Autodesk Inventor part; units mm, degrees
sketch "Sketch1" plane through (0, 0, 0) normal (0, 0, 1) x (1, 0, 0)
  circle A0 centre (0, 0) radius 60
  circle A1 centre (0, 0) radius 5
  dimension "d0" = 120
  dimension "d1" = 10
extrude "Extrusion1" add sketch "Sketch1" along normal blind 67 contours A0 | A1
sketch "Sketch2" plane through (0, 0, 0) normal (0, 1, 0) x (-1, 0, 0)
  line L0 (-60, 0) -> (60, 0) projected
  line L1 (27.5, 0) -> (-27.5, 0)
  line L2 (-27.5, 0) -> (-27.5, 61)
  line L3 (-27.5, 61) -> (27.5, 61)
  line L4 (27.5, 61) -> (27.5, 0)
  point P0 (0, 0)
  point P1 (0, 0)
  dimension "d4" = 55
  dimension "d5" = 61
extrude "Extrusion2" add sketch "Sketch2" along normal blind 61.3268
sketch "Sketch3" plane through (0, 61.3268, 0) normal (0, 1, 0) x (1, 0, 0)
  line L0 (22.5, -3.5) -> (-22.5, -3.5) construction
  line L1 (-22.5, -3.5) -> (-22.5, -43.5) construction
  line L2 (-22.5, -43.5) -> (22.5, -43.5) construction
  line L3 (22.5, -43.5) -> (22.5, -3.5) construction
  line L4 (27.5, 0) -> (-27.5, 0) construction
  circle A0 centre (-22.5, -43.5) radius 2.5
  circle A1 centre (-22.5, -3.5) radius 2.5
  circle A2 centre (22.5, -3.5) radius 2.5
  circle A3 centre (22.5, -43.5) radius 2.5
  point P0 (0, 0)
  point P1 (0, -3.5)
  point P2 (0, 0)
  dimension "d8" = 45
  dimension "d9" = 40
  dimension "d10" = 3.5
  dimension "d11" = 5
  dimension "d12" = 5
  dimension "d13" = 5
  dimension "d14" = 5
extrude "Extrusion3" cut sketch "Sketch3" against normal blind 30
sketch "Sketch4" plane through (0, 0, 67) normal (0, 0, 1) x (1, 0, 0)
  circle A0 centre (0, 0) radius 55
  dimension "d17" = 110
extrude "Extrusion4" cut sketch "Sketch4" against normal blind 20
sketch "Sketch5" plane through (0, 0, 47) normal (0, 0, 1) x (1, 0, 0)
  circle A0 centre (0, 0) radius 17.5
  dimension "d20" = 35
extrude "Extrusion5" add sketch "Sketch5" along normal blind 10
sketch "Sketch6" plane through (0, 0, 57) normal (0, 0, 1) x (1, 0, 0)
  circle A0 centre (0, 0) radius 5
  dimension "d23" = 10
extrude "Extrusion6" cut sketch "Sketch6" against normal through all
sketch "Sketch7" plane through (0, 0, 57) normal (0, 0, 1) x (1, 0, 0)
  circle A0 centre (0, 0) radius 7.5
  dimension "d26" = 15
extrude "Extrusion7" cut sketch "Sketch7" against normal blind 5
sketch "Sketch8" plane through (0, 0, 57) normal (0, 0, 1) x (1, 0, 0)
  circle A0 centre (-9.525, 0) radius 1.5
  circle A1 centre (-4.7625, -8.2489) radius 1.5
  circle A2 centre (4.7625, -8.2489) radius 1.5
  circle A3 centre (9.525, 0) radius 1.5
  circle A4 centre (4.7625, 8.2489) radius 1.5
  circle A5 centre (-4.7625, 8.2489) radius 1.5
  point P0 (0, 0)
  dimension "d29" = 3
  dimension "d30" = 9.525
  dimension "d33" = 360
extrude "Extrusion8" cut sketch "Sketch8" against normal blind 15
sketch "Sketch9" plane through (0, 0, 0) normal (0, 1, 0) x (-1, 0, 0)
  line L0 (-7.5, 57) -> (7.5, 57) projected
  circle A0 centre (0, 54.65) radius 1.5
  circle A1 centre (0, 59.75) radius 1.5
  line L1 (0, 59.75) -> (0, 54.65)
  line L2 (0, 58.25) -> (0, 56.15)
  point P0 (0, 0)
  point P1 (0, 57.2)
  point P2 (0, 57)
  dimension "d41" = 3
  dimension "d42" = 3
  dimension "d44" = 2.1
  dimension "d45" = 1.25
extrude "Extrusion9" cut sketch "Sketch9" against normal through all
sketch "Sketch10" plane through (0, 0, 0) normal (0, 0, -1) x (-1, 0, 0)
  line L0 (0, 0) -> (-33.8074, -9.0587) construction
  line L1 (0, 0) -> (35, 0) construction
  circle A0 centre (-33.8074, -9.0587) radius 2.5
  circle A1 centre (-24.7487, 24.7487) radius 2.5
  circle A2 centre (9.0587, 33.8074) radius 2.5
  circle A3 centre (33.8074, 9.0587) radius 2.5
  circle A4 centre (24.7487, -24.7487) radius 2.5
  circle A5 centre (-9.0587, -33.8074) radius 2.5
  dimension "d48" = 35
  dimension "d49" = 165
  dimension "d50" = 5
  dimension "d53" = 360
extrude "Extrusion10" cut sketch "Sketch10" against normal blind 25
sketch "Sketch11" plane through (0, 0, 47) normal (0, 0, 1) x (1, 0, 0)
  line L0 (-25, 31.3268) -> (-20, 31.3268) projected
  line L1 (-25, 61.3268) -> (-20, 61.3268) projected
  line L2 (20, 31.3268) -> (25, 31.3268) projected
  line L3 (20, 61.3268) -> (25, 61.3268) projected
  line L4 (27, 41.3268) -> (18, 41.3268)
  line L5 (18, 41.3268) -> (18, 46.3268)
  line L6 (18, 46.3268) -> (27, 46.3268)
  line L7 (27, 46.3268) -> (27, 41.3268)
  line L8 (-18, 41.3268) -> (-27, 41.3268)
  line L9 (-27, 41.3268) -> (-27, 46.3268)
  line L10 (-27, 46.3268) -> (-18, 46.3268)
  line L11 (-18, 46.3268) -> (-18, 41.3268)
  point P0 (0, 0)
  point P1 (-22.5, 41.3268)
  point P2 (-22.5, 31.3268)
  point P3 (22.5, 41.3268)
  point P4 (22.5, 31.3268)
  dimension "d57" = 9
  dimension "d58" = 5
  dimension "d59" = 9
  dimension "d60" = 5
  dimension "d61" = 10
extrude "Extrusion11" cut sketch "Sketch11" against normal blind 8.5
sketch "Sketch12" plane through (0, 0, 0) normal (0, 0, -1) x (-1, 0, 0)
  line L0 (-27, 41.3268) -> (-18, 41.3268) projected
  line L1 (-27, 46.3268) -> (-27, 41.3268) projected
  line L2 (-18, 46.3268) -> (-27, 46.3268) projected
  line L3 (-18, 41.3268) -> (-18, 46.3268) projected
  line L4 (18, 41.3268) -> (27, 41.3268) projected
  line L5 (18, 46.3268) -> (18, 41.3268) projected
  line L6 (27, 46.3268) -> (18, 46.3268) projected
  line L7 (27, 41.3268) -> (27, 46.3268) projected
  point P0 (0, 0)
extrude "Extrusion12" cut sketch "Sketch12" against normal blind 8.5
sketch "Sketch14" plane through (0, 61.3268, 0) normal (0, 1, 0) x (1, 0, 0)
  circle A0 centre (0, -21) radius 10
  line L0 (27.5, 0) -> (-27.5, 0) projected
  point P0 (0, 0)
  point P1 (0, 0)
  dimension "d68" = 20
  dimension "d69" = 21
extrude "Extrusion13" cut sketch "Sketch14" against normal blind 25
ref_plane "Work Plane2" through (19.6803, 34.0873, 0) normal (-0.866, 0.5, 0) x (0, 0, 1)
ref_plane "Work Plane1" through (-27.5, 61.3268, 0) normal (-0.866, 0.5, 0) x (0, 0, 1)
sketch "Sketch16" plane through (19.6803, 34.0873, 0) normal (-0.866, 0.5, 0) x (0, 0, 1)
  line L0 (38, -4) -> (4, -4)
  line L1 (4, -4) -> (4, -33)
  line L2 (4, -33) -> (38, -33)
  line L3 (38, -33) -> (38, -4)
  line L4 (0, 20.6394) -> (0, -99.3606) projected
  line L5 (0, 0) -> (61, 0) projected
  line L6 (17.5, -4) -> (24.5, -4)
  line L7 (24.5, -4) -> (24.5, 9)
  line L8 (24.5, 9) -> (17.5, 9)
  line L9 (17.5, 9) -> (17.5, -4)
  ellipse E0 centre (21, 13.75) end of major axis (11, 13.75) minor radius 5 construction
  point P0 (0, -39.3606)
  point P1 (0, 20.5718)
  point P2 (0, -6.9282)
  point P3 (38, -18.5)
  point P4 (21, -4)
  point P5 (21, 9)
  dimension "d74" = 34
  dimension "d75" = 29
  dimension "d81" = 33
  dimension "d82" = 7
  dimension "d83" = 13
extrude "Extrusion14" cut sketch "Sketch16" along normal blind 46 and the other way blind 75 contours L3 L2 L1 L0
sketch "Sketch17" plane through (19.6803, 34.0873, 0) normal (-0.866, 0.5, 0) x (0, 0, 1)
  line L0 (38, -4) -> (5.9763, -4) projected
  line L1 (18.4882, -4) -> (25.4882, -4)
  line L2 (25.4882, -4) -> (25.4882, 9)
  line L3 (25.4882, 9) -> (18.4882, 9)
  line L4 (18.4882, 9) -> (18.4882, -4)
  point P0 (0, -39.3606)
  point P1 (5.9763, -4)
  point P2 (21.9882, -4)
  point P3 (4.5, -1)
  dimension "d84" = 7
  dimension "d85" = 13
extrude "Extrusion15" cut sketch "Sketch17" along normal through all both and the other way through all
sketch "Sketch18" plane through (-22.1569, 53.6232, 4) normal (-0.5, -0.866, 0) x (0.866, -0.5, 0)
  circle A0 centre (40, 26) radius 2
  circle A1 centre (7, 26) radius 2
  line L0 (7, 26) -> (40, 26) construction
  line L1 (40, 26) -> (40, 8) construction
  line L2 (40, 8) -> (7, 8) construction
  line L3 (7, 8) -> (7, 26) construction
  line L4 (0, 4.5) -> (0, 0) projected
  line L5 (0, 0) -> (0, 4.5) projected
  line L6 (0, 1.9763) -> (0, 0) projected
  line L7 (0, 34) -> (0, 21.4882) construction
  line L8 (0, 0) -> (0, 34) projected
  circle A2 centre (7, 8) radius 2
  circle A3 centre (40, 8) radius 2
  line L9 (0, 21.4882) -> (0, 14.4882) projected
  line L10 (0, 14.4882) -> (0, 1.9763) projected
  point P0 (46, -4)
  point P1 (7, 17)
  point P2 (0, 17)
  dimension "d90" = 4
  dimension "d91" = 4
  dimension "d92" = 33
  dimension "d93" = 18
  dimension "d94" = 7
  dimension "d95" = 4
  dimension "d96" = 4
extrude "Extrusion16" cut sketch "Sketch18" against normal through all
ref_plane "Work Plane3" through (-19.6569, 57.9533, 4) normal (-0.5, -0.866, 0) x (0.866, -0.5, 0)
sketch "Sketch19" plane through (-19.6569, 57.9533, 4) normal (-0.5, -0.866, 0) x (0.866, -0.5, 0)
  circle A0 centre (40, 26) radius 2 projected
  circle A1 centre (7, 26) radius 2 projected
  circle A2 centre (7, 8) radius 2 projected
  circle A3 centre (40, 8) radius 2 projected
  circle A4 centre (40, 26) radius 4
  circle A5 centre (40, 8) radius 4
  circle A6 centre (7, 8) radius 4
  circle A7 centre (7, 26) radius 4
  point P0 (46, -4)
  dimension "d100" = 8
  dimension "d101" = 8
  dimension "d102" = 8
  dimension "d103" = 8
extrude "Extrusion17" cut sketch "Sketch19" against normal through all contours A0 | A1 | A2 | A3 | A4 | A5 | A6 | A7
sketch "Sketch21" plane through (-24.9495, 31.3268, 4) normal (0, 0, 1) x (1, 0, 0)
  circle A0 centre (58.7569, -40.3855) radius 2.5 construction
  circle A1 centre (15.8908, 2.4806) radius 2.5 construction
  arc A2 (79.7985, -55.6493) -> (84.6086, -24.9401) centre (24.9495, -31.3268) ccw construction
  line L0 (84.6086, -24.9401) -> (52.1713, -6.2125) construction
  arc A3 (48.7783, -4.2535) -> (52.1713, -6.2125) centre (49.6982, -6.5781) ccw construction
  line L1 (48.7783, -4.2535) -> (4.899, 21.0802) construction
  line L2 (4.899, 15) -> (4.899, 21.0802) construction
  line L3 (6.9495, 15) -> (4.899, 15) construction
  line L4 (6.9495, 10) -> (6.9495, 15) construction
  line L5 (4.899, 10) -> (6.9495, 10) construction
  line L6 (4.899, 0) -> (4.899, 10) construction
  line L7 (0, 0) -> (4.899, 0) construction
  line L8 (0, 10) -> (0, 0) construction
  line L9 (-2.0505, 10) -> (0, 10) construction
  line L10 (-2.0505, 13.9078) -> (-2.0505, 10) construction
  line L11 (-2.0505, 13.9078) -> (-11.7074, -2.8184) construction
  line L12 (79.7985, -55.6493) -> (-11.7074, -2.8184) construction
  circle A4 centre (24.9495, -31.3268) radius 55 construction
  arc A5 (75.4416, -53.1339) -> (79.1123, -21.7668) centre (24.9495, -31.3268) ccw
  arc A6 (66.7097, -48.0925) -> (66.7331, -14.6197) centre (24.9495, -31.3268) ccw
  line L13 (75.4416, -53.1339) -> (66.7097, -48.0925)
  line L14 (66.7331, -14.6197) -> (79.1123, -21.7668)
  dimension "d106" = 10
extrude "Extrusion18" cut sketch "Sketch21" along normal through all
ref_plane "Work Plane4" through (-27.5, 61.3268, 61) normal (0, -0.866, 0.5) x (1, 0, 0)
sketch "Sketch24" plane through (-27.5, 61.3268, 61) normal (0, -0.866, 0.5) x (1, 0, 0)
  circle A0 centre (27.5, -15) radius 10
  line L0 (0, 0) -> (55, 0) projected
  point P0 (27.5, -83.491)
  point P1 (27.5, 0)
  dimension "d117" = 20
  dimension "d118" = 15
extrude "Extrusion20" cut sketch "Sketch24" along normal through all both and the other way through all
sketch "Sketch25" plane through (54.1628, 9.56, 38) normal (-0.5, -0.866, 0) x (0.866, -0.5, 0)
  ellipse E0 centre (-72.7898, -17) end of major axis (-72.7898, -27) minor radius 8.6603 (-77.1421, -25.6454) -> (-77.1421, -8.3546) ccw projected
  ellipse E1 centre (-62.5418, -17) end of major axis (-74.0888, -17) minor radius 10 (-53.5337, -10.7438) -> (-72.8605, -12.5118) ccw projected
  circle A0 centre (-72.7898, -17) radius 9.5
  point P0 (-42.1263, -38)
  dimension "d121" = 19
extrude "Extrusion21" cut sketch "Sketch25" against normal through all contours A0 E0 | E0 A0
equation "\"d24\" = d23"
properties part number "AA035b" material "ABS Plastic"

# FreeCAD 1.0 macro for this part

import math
import FreeCAD as App
import Part
import Sketcher

V = App.Vector
Q = App.Units.Quantity

doc = App.newDocument("Part")
body = doc.addObject("PartDesign::Body", "Body")

sketch1 = body.newObject("Sketcher::SketchObject", "Sketch")
sketch1.AttachmentSupport = (doc.getObject("XY_Plane"), [""])
sketch1.MapMode = "FlatFace"
sketch1.addGeometry(Part.Circle(V(0, 0, 0), V(0, 0, 1), 60), False)
sketch1.addConstraint([
    Sketcher.Constraint("Coincident", 0, 3, -1, 1),
    Sketcher.Constraint("Diameter", 0, 120.0),
])
pad1 = body.newObject("PartDesign::Pad", "Pad")
pad1.Profile = sketch1
pad1.Length = 67

sketch2 = body.newObject("Sketcher::SketchObject", "Sketch001")
sketch2.AttachmentSupport = (doc.getObject("XZ_Plane"), [""])
sketch2.MapMode = "FlatFace"
sketch2.addGeometry([
    Part.LineSegment(V(28, 61, 0), V(28, 0, 0)),
    Part.LineSegment(V(28, 0, 0), V(-28, 0, 0)),
    Part.LineSegment(V(-28, 0, 0), V(-28, 61, 0)),
    Part.LineSegment(V(-28, 61, 0), V(28, 61, 0)),
], False)
sketch2.addConstraint([
    Sketcher.Constraint("Coincident", 0, 2, 1, 1),
    Sketcher.Constraint("Coincident", 1, 2, 2, 1),
    Sketcher.Constraint("Coincident", 2, 2, 3, 1),
    Sketcher.Constraint("Coincident", 3, 2, 0, 1),
    Sketcher.Constraint("Vertical", 0),
    Sketcher.Constraint("Horizontal", 1),
    Sketcher.Constraint("Vertical", 2),
    Sketcher.Constraint("Horizontal", 3),
    Sketcher.Constraint("Symmetric", 0, 2, 1, 2, -1, 1),
    Sketcher.Constraint("DistanceX", 1, 2, 1, 1, 55.0),
    Sketcher.Constraint("DistanceY", 0, 2, 0, 1, 61.0),
])
pad2 = body.newObject("PartDesign::Pad", "Pad001")
pad2.Profile = sketch2
pad2.Length = 61.3268
pad2.Reversed = True

sketch3 = body.newObject("Sketcher::SketchObject", "Sketch002")
sketch3.AttachmentSupport = (doc.getObject("XZ_Plane"), [""])
sketch3.MapMode = "FlatFace"
sketch3.AttachmentOffset = App.Placement(V(0, 0, -61.3268), App.Rotation())
sketch3.addGeometry([
    Part.Circle(V(-22.5, 43.5, 0), V(0, 0, 1), 2.5),
    Part.Circle(V(-22.5, 3.5, 0), V(0, 0, 1), 2.5),
    Part.Circle(V(22.5, 3.5, 0), V(0, 0, 1), 2.5),
    Part.Circle(V(22.5, 43.5, 0), V(0, 0, 1), 2.5),
], False)
sketch3.addConstraint([
    Sketcher.Constraint("Equal", 0, 1),
    Sketcher.Constraint("Equal", 1, 2),
    Sketcher.Constraint("Equal", 2, 3),
    Sketcher.Constraint("Symmetric", 1, 3, 2, 3, -2),
    Sketcher.Constraint("Symmetric", 0, 3, 3, 3, -2),
    Sketcher.Constraint("Vertical", 0, 3, 1, 3),
    Sketcher.Constraint("Diameter", 0, 5.0),
    Sketcher.Constraint("DistanceY", 1, 3, 0, 3, 40.0),
    Sketcher.Constraint("DistanceX", 1, 3, 2, 3, 45.0),
    Sketcher.Constraint("DistanceY", -1, 1, 1, 3, 3.5),
])
pocket1 = body.newObject("PartDesign::Pocket", "Pocket")
pocket1.Profile = sketch3
pocket1.Length = 30
pocket1.Reversed = True

sketch4 = body.newObject("Sketcher::SketchObject", "Sketch003")
sketch4.AttachmentSupport = (doc.getObject("XY_Plane"), [""])
sketch4.MapMode = "FlatFace"
sketch4.AttachmentOffset = App.Placement(V(0, 0, 67), App.Rotation())
sketch4.addGeometry(Part.Circle(V(0, 0, 0), V(0, 0, 1), 55), False)
sketch4.addConstraint([
    Sketcher.Constraint("Coincident", 0, 3, -1, 1),
    Sketcher.Constraint("Diameter", 0, 110.0),
])
pocket2 = body.newObject("PartDesign::Pocket", "Pocket001")
pocket2.Profile = sketch4
pocket2.Length = 20

sketch5 = body.newObject("Sketcher::SketchObject", "Sketch004")
sketch5.AttachmentSupport = (doc.getObject("XY_Plane"), [""])
sketch5.MapMode = "FlatFace"
sketch5.AttachmentOffset = App.Placement(V(0, 0, 47), App.Rotation())
sketch5.addGeometry(Part.Circle(V(0, 0, 0), V(0, 0, 1), 18), False)
sketch5.addConstraint([
    Sketcher.Constraint("Coincident", 0, 3, -1, 1),
    Sketcher.Constraint("Diameter", 0, 35.0),
])
pad3 = body.newObject("PartDesign::Pad", "Pad002")
pad3.Profile = sketch5
pad3.Length = 10

sketch6 = body.newObject("Sketcher::SketchObject", "Sketch005")
sketch6.AttachmentSupport = (doc.getObject("XY_Plane"), [""])
sketch6.MapMode = "FlatFace"
sketch6.AttachmentOffset = App.Placement(V(0, 0, 57), App.Rotation())
sketch6.addGeometry(Part.Circle(V(0, 0, 0), V(0, 0, 1), 5), False)
sketch6.addConstraint([
    Sketcher.Constraint("Coincident", 0, 3, -1, 1),
    Sketcher.Constraint("Diameter", 0, 10.0),
])
pocket3 = body.newObject("PartDesign::Pocket", "Pocket002")
pocket3.Profile = sketch6
pocket3.Type = "ThroughAll"

sketch7 = body.newObject("Sketcher::SketchObject", "Sketch006")
sketch7.AttachmentSupport = (doc.getObject("XY_Plane"), [""])
sketch7.MapMode = "FlatFace"
sketch7.AttachmentOffset = App.Placement(V(0, 0, 57), App.Rotation())
sketch7.addGeometry(Part.Circle(V(0, 0, 0), V(0, 0, 1), 8), False)
sketch7.addConstraint([
    Sketcher.Constraint("Coincident", 0, 3, -1, 1),
    Sketcher.Constraint("Diameter", 0, 15.0),
])
pocket4 = body.newObject("PartDesign::Pocket", "Pocket003")
pocket4.Profile = sketch7
pocket4.Length = 5

sketch8 = body.newObject("Sketcher::SketchObject", "Sketch007")
sketch8.AttachmentSupport = (doc.getObject("XY_Plane"), [""])
sketch8.MapMode = "FlatFace"
sketch8.AttachmentOffset = App.Placement(V(0, 0, 57), App.Rotation())
sketch8.addGeometry([
    Part.Circle(V(-9.5, 0, 0), V(0, 0, 1), 1.5),
    Part.Circle(V(-4.8, -8.2, 0), V(0, 0, 1), 1.5),
    Part.Circle(V(4.8, -8.2, 0), V(0, 0, 1), 1.5),
    Part.Circle(V(9.5, 0, 0), V(0, 0, 1), 1.5),
    Part.Circle(V(4.8, 8.2, 0), V(0, 0, 1), 1.5),
    Part.Circle(V(-4.8, 8.2, 0), V(0, 0, 1), 1.5),
], False)
sketch8.addConstraint([
    Sketcher.Constraint("Equal", 0, 1),
    Sketcher.Constraint("Equal", 1, 2),
    Sketcher.Constraint("Equal", 2, 3),
    Sketcher.Constraint("Equal", 3, 4),
    Sketcher.Constraint("Equal", 4, 5),
    Sketcher.Constraint("Symmetric", 0, 3, 3, 3, -1, 1),
    Sketcher.Constraint("Symmetric", 1, 3, 4, 3, -1, 1),
    Sketcher.Constraint("Symmetric", 2, 3, 5, 3, -1, 1),
    Sketcher.Constraint("Symmetric", 1, 3, 2, 3, -2),
    Sketcher.Constraint("PointOnObject", 0, 3, -1),
    Sketcher.Constraint("Diameter", 0, 3.0),
    Sketcher.Constraint("DistanceX", 0, 3, -1, 1, 9.525),
    Sketcher.Constraint("DistanceX", 1, 3, 2, 3, 9.525),
    Sketcher.Constraint("DistanceY", 1, 3, -1, 1, 8.249),
])
pocket5 = body.newObject("PartDesign::Pocket", "Pocket004")
pocket5.Profile = sketch8
pocket5.Length = 15

sketch9 = body.newObject("Sketcher::SketchObject", "Sketch008")
sketch9.AttachmentSupport = (doc.getObject("XZ_Plane"), [""])
sketch9.MapMode = "FlatFace"
sketch9.addGeometry([
    Part.Circle(V(0, 54.6, 0), V(0, 0, 1), 1.5),
    Part.Circle(V(0, 59.8, 0), V(0, 0, 1), 1.5),
], False)
sketch9.addConstraint([
    Sketcher.Constraint("Equal", 0, 1),
    Sketcher.Constraint("PointOnObject", 0, 3, -2),
    Sketcher.Constraint("PointOnObject", 1, 3, -2),
    Sketcher.Constraint("Diameter", 0, 3.0),
    Sketcher.Constraint("DistanceY", 0, 3, 1, 3, 5.1),
    Sketcher.Constraint("DistanceY", -1, 1, 0, 3, 54.65),
])
pocket6 = body.newObject("PartDesign::Pocket", "Pocket005")
pocket6.Profile = sketch9
pocket6.Type = "ThroughAll"
pocket6.Reversed = True

sketch10 = body.newObject("Sketcher::SketchObject", "Sketch009")
sketch10.AttachmentSupport = (doc.getObject("XY_Plane"), [""])
sketch10.MapMode = "FlatFace"
sketch10.addGeometry([
    Part.Circle(V(33.8, -9.1, 0), V(0, 0, 1), 2.5),
    Part.Circle(V(24.7, 24.7, 0), V(0, 0, 1), 2.5),
    Part.Circle(V(-9.1, 33.8, 0), V(0, 0, 1), 2.5),
    Part.Circle(V(-33.8, 9.1, 0), V(0, 0, 1), 2.5),
    Part.Circle(V(-24.7, -24.7, 0), V(0, 0, 1), 2.5),
    Part.Circle(V(9.1, -33.8, 0), V(0, 0, 1), 2.5),
], False)
sketch10.addConstraint([
    Sketcher.Constraint("Equal", 0, 1),
    Sketcher.Constraint("Equal", 1, 2),
    Sketcher.Constraint("Equal", 2, 3),
    Sketcher.Constraint("Equal", 3, 4),
    Sketcher.Constraint("Equal", 4, 5),
    Sketcher.Constraint("Symmetric", 0, 3, 3, 3, -1, 1),
    Sketcher.Constraint("Symmetric", 1, 3, 4, 3, -1, 1),
    Sketcher.Constraint("Symmetric", 2, 3, 5, 3, -1, 1),
    Sketcher.Constraint("Diameter", 0, 5.0),
    Sketcher.Constraint("DistanceY", 3, 3, 1, 3, 15.69),
    Sketcher.Constraint("DistanceX", 4, 3, 2, 3, 15.69),
    Sketcher.Constraint("DistanceX", 2, 3, 0, 3, 42.866),
    Sketcher.Constraint("DistanceY", 0, 3, 2, 3, 42.866),
    Sketcher.Constraint("DistanceX", -1, 1, 0, 3, 33.8074),
    Sketcher.Constraint("DistanceY", 0, 3, -1, 1, 9.0587),
])
pocket7 = body.newObject("PartDesign::Pocket", "Pocket006")
pocket7.Profile = sketch10
pocket7.Length = 25
pocket7.Reversed = True

sketch11 = body.newObject("Sketcher::SketchObject", "Sketch010")
sketch11.AttachmentSupport = (doc.getObject("XY_Plane"), [""])
sketch11.MapMode = "FlatFace"
sketch11.AttachmentOffset = App.Placement(V(0, 0, 47), App.Rotation())
sketch11.addGeometry([
    Part.LineSegment(V(18, 41, 0), V(27, 41, 0)),
    Part.LineSegment(V(27, 41, 0), V(27, 46, 0)),
    Part.LineSegment(V(27, 46, 0), V(18, 46, 0)),
    Part.LineSegment(V(18, 46, 0), V(18, 41, 0)),
    Part.LineSegment(V(-27, 41, 0), V(-18, 41, 0)),
    Part.LineSegment(V(-18, 41, 0), V(-18, 46, 0)),
    Part.LineSegment(V(-18, 46, 0), V(-27, 46, 0)),
    Part.LineSegment(V(-27, 46, 0), V(-27, 41, 0)),
], False)
sketch11.addConstraint([
    Sketcher.Constraint("Coincident", 0, 2, 1, 1),
    Sketcher.Constraint("Coincident", 1, 2, 2, 1),
    Sketcher.Constraint("Coincident", 2, 2, 3, 1),
    Sketcher.Constraint("Coincident", 3, 2, 0, 1),
    Sketcher.Constraint("Coincident", 4, 2, 5, 1),
    Sketcher.Constraint("Coincident", 5, 2, 6, 1),
    Sketcher.Constraint("Coincident", 6, 2, 7, 1),
    Sketcher.Constraint("Coincident", 7, 2, 4, 1),
    Sketcher.Constraint("Horizontal", 0),
    Sketcher.Constraint("Vertical", 1),
    Sketcher.Constraint("Horizontal", 2),
    Sketcher.Constraint("Vertical", 3),
    Sketcher.Constraint("Horizontal", 4),
    Sketcher.Constraint("Vertical", 5),
    Sketcher.Constraint("Horizontal", 6),
    Sketcher.Constraint("Vertical", 7),
    Sketcher.Constraint("Symmetric", 3, 2, 4, 2, -2),
    Sketcher.Constraint("Symmetric", 1, 2, 6, 2, -2),
    Sketcher.Constraint("DistanceX", 0, 1, 0, 2, 9.0),
    Sketcher.Constraint("DistanceY", 1, 1, 1, 2, 5.0),
    Sketcher.Constraint("DistanceX", -1, 1, 0, 2, 27.0),
    Sketcher.Constraint("DistanceY", -1, 1, 0, 2, 41.3268),
])
pocket8 = body.newObject("PartDesign::Pocket", "Pocket007")
pocket8.Profile = sketch11
pocket8.Length = 8.5

sketch12 = body.newObject("Sketcher::SketchObject", "Sketch011")
sketch12.AttachmentSupport = (doc.getObject("XY_Plane"), [""])
sketch12.MapMode = "FlatFace"
sketch12.addGeometry([
    Part.LineSegment(V(27, 46, 0), V(27, 41, 0)),
    Part.LineSegment(V(27, 41, 0), V(18, 41, 0)),
    Part.LineSegment(V(18, 41, 0), V(18, 46, 0)),
    Part.LineSegment(V(18, 46, 0), V(27, 46, 0)),
    Part.LineSegment(V(-18, 46, 0), V(-18, 41, 0)),
    Part.LineSegment(V(-18, 41, 0), V(-27, 41, 0)),
    Part.LineSegment(V(-27, 41, 0), V(-27, 46, 0)),
    Part.LineSegment(V(-27, 46, 0), V(-18, 46, 0)),
], False)
sketch12.addConstraint([
    Sketcher.Constraint("Coincident", 0, 2, 1, 1),
    Sketcher.Constraint("Coincident", 1, 2, 2, 1),
    Sketcher.Constraint("Coincident", 2, 2, 3, 1),
    Sketcher.Constraint("Coincident", 3, 2, 0, 1),
    Sketcher.Constraint("Coincident", 4, 2, 5, 1),
    Sketcher.Constraint("Coincident", 5, 2, 6, 1),
    Sketcher.Constraint("Coincident", 6, 2, 7, 1),
    Sketcher.Constraint("Coincident", 7, 2, 4, 1),
    Sketcher.Constraint("Vertical", 0),
    Sketcher.Constraint("Horizontal", 1),
    Sketcher.Constraint("Vertical", 2),
    Sketcher.Constraint("Horizontal", 3),
    Sketcher.Constraint("Vertical", 4),
    Sketcher.Constraint("Horizontal", 5),
    Sketcher.Constraint("Vertical", 6),
    Sketcher.Constraint("Horizontal", 7),
    Sketcher.Constraint("Symmetric", 1, 2, 4, 2, -2),
    Sketcher.Constraint("Symmetric", 3, 2, 6, 2, -2),
    Sketcher.Constraint("DistanceX", 1, 2, 1, 1, 9.0),
    Sketcher.Constraint("DistanceY", 0, 2, 0, 1, 5.0),
    Sketcher.Constraint("DistanceX", -1, 1, 0, 2, 27.0),
    Sketcher.Constraint("DistanceY", -1, 1, 0, 2, 41.3268),
])
pocket9 = body.newObject("PartDesign::Pocket", "Pocket008")
pocket9.Profile = sketch12
pocket9.Length = 8.5
pocket9.Reversed = True

sketch13 = body.newObject("Sketcher::SketchObject", "Sketch012")
sketch13.AttachmentSupport = (doc.getObject("XZ_Plane"), [""])
sketch13.MapMode = "FlatFace"
sketch13.AttachmentOffset = App.Placement(V(0, 0, -61.3268), App.Rotation())
sketch13.addGeometry(Part.Circle(V(0, 21, 0), V(0, 0, 1), 10), False)
sketch13.addConstraint([
    Sketcher.Constraint("PointOnObject", 0, 3, -2),
    Sketcher.Constraint("Diameter", 0, 20.0),
    Sketcher.Constraint("DistanceY", -1, 1, 0, 3, 21.0),
])
pocket10 = body.newObject("PartDesign::Pocket", "Pocket009")
pocket10.Profile = sketch13
pocket10.Length = 25
pocket10.Reversed = True

sketch14 = body.newObject("Sketcher::SketchObject", "Sketch013")
sketch14.Placement = App.Placement(V(19.6803, 34.0873, 0), App.Rotation(V(0, 0, 1), V(0.5, 0.866025404, 0), V(-0.866025404, 0.5, 0), "ZXY"))
sketch14.addGeometry([
    Part.LineSegment(V(38, -33, 0), V(38, -4, 0)),
    Part.LineSegment(V(38, -4, 0), V(4, -4, 0)),
    Part.LineSegment(V(4, -4, 0), V(4, -33, 0)),
    Part.LineSegment(V(4, -33, 0), V(38, -33, 0)),
], False)
sketch14.addConstraint([
    Sketcher.Constraint("Coincident", 0, 2, 1, 1),
    Sketcher.Constraint("Coincident", 1, 2, 2, 1),
    Sketcher.Constraint("Coincident", 2, 2, 3, 1),
    Sketcher.Constraint("Coincident", 3, 2, 0, 1),
    Sketcher.Constraint("Vertical", 0),
    Sketcher.Constraint("Horizontal", 1),
    Sketcher.Constraint("Vertical", 2),
    Sketcher.Constraint("Horizontal", 3),
    Sketcher.Constraint("DistanceX", 1, 2, 1, 1, 34.0),
    Sketcher.Constraint("DistanceY", 0, 1, 0, 2, 29.0),
    Sketcher.Constraint("DistanceY", 2, 2, -1, 1, 33.0),
    Sketcher.Constraint("DistanceX", -1, 1, 0, 2, 38.0),
])
pocket11 = body.newObject("PartDesign::Pocket", "Pocket010")
pocket11.Profile = sketch14
pocket11.Type = "TwoLengths"
pocket11.Length = 46
pocket11.Length2 = 75
pocket11.Reversed = True

sketch15 = body.newObject("Sketcher::SketchObject", "Sketch014")
sketch15.Placement = App.Placement(V(19.6803, 34.0873, 0), App.Rotation(V(0, 0, 1), V(0.5, 0.866025404, 0), V(-0.866025404, 0.5, 0), "ZXY"))
sketch15.addGeometry([
    Part.LineSegment(V(18, -4, 0), V(25, -4, 0)),
    Part.LineSegment(V(25, -4, 0), V(25, 9, 0)),
    Part.LineSegment(V(25, 9, 0), V(18, 9, 0)),
    Part.LineSegment(V(18, 9, 0), V(18, -4, 0)),
], False)
sketch15.addConstraint([
    Sketcher.Constraint("Coincident", 0, 2, 1, 1),
    Sketcher.Constraint("Coincident", 1, 2, 2, 1),
    Sketcher.Constraint("Coincident", 2, 2, 3, 1),
    Sketcher.Constraint("Coincident", 3, 2, 0, 1),
    Sketcher.Constraint("Horizontal", 0),
    Sketcher.Constraint("Vertical", 1),
    Sketcher.Constraint("Horizontal", 2),
    Sketcher.Constraint("Vertical", 3),
    Sketcher.Constraint("DistanceX", 0, 1, 0, 2, 7.0),
    Sketcher.Constraint("DistanceY", 1, 1, 1, 2, 13.0),
    Sketcher.Constraint("DistanceY", 0, 2, -1, 1, 4.0),
    Sketcher.Constraint("DistanceX", -1, 1, 0, 2, 25.4882),
])
pocket12 = body.newObject("PartDesign::Pocket", "Pocket011")
pocket12.Profile = sketch15
pocket12.Type = "ThroughAll"
pocket12.Midplane = True

sketch16 = body.newObject("Sketcher::SketchObject", "Sketch015")
sketch16.Placement = App.Placement(V(-22.1569, 53.6232, 4), App.Rotation(V(0.866025404, -0.5, 0), V(0, 0, 1), V(-0.5, -0.866025404, 0), "ZXY"))
sketch16.addGeometry([
    Part.Circle(V(40, 26, 0), V(0, 0, 1), 2),
    Part.Circle(V(7, 26, 0), V(0, 0, 1), 2),
    Part.Circle(V(7, 8, 0), V(0, 0, 1), 2),
    Part.Circle(V(40, 8, 0), V(0, 0, 1), 2),
], False)
sketch16.addConstraint([
    Sketcher.Constraint("Equal", 0, 1),
    Sketcher.Constraint("Equal", 1, 2),
    Sketcher.Constraint("Equal", 2, 3),
    Sketcher.Constraint("Horizontal", 0, 3, 1, 3),
    Sketcher.Constraint("Horizontal", 2, 3, 3, 3),
    Sketcher.Constraint("Vertical", 1, 3, 2, 3),
    Sketcher.Constraint("Vertical", 0, 3, 3, 3),
    Sketcher.Constraint("Diameter", 0, 4.0),
    Sketcher.Constraint("DistanceX", -1, 1, 1, 3, 7.0),
    Sketcher.Constraint("DistanceX", 1, 3, 0, 3, 33.0),
    Sketcher.Constraint("DistanceY", 2, 3, 1, 3, 18.0),
    Sketcher.Constraint("DistanceY", -1, 1, 0, 3, 26.0),
])
pocket13 = body.newObject("PartDesign::Pocket", "Pocket012")
pocket13.Profile = sketch16
pocket13.Type = "ThroughAll"

sketch17 = body.newObject("Sketcher::SketchObject", "Sketch016")
sketch17.Placement = App.Placement(V(-19.6569, 57.9533, 4), App.Rotation(V(0.866025404, -0.5, 0), V(0, 0, 1), V(-0.5, -0.866025404, 0), "ZXY"))
sketch17.addGeometry([
    Part.Circle(V(40, 26, 0), V(0, 0, 1), 4),
    Part.Circle(V(7, 26, 0), V(0, 0, 1), 4),
    Part.Circle(V(7, 8, 0), V(0, 0, 1), 4),
    Part.Circle(V(40, 8, 0), V(0, 0, 1), 4),
], False)
sketch17.addConstraint([
    Sketcher.Constraint("Equal", 0, 1),
    Sketcher.Constraint("Equal", 1, 2),
    Sketcher.Constraint("Equal", 2, 3),
    Sketcher.Constraint("Horizontal", 0, 3, 1, 3),
    Sketcher.Constraint("Horizontal", 2, 3, 3, 3),
    Sketcher.Constraint("Vertical", 1, 3, 2, 3),
    Sketcher.Constraint("Vertical", 0, 3, 3, 3),
    Sketcher.Constraint("Diameter", 0, 8.0),
    Sketcher.Constraint("DistanceY", -1, 1, 2, 3, 8.0),
    Sketcher.Constraint("DistanceX", -1, 1, 0, 3, 40.0),
    Sketcher.Constraint("DistanceY", -1, 1, 0, 3, 26.0),
    Sketcher.Constraint("DistanceX", -1, 1, 1, 3, 7.0),
])
pocket14 = body.newObject("PartDesign::Pocket", "Pocket013")
pocket14.Profile = sketch17
pocket14.Type = "ThroughAll"

sketch18 = body.newObject("Sketcher::SketchObject", "Sketch017")
sketch18.AttachmentSupport = (doc.getObject("XY_Plane"), [""])
sketch18.MapMode = "FlatFace"
sketch18.AttachmentOffset = App.Placement(V(0, 0, 4), App.Rotation())
sketch18.addGeometry([
    Part.LineSegment(V(42, -17, 0), V(50, -22, 0)),
    Part.ArcOfCircle(Part.Circle(V(0, 0, 0), V(0, 0, 1), 55), math.radians(-23), math.radians(10)),
    Part.LineSegment(V(54, 10, 0), V(42, 17, 0)),
    Part.ArcOfCircle(Part.Circle(V(0, 0, 0), V(0, 0, 1), 45), math.radians(-22), math.radians(22)),
], False)
sketch18.addConstraint([
    Sketcher.Constraint("Coincident", 0, 2, 1, 1),
    Sketcher.Constraint("Coincident", 1, 2, 2, 1),
    Sketcher.Constraint("Coincident", 2, 2, 3, 2),
    Sketcher.Constraint("Coincident", 3, 1, 0, 1),
    Sketcher.Constraint("Coincident", 1, 3, -1, 1),
    Sketcher.Constraint("Coincident", 3, 3, -1, 1),
    Sketcher.Constraint("Parallel", 0, 2),
    Sketcher.Constraint("Radius", 1, 55.0),
    Sketcher.Constraint("Radius", 3, 45.0),
    Sketcher.Constraint("Angle", 0, Q("-30.0002 deg")),
    Sketcher.Constraint("DistanceY", -1, 1, 1, 2, 9.56),
    Sketcher.Constraint("DistanceX", -1, 1, 0, 2, 50.492),
])
pocket15 = body.newObject("PartDesign::Pocket", "Pocket014")
pocket15.Profile = sketch18
pocket15.Type = "ThroughAll"
pocket15.Reversed = True

sketch19 = body.newObject("Sketcher::SketchObject", "Sketch018")
sketch19.Placement = App.Placement(V(-27.5, 61.3268, 61), App.Rotation(V(1, 0, 0), V(0, 0.5, 0.866025404), V(0, -0.866025404, 0.5), "ZXY"))
sketch19.addGeometry(Part.Circle(V(28, -15, 0), V(0, 0, 1), 10), False)
sketch19.addConstraint([
    Sketcher.Constraint("Diameter", 0, 20.0),
    Sketcher.Constraint("DistanceY", 0, 3, -1, 1, 15.0),
    Sketcher.Constraint("DistanceX", -1, 1, 0, 3, 27.5),
])
pocket16 = body.newObject("PartDesign::Pocket", "Pocket015")
pocket16.Profile = sketch19
pocket16.Type = "ThroughAll"
pocket16.Midplane = True

sketch20 = body.newObject("Sketcher::SketchObject", "Sketch019")
sketch20.Placement = App.Placement(V(54.1628, 9.56, 38), App.Rotation(V(0.866025404, -0.5, 0), V(0, 0, 1), V(-0.5, -0.866025404, 0), "ZXY"))
sketch20.addGeometry(Part.Circle(V(-73, -17, 0), V(0, 0, 1), 10), False)
sketch20.addConstraint([
    Sketcher.Constraint("Diameter", 0, 19.0),
    Sketcher.Constraint("DistanceY", 0, 3, -1, 1, 17.0),
    Sketcher.Constraint("DistanceX", 0, 3, -1, 1, 72.7898),
])
pocket17 = body.newObject("PartDesign::Pocket", "Pocket016")
pocket17.Profile = sketch20
pocket17.Type = "ThroughAll"

doc.recompute()
